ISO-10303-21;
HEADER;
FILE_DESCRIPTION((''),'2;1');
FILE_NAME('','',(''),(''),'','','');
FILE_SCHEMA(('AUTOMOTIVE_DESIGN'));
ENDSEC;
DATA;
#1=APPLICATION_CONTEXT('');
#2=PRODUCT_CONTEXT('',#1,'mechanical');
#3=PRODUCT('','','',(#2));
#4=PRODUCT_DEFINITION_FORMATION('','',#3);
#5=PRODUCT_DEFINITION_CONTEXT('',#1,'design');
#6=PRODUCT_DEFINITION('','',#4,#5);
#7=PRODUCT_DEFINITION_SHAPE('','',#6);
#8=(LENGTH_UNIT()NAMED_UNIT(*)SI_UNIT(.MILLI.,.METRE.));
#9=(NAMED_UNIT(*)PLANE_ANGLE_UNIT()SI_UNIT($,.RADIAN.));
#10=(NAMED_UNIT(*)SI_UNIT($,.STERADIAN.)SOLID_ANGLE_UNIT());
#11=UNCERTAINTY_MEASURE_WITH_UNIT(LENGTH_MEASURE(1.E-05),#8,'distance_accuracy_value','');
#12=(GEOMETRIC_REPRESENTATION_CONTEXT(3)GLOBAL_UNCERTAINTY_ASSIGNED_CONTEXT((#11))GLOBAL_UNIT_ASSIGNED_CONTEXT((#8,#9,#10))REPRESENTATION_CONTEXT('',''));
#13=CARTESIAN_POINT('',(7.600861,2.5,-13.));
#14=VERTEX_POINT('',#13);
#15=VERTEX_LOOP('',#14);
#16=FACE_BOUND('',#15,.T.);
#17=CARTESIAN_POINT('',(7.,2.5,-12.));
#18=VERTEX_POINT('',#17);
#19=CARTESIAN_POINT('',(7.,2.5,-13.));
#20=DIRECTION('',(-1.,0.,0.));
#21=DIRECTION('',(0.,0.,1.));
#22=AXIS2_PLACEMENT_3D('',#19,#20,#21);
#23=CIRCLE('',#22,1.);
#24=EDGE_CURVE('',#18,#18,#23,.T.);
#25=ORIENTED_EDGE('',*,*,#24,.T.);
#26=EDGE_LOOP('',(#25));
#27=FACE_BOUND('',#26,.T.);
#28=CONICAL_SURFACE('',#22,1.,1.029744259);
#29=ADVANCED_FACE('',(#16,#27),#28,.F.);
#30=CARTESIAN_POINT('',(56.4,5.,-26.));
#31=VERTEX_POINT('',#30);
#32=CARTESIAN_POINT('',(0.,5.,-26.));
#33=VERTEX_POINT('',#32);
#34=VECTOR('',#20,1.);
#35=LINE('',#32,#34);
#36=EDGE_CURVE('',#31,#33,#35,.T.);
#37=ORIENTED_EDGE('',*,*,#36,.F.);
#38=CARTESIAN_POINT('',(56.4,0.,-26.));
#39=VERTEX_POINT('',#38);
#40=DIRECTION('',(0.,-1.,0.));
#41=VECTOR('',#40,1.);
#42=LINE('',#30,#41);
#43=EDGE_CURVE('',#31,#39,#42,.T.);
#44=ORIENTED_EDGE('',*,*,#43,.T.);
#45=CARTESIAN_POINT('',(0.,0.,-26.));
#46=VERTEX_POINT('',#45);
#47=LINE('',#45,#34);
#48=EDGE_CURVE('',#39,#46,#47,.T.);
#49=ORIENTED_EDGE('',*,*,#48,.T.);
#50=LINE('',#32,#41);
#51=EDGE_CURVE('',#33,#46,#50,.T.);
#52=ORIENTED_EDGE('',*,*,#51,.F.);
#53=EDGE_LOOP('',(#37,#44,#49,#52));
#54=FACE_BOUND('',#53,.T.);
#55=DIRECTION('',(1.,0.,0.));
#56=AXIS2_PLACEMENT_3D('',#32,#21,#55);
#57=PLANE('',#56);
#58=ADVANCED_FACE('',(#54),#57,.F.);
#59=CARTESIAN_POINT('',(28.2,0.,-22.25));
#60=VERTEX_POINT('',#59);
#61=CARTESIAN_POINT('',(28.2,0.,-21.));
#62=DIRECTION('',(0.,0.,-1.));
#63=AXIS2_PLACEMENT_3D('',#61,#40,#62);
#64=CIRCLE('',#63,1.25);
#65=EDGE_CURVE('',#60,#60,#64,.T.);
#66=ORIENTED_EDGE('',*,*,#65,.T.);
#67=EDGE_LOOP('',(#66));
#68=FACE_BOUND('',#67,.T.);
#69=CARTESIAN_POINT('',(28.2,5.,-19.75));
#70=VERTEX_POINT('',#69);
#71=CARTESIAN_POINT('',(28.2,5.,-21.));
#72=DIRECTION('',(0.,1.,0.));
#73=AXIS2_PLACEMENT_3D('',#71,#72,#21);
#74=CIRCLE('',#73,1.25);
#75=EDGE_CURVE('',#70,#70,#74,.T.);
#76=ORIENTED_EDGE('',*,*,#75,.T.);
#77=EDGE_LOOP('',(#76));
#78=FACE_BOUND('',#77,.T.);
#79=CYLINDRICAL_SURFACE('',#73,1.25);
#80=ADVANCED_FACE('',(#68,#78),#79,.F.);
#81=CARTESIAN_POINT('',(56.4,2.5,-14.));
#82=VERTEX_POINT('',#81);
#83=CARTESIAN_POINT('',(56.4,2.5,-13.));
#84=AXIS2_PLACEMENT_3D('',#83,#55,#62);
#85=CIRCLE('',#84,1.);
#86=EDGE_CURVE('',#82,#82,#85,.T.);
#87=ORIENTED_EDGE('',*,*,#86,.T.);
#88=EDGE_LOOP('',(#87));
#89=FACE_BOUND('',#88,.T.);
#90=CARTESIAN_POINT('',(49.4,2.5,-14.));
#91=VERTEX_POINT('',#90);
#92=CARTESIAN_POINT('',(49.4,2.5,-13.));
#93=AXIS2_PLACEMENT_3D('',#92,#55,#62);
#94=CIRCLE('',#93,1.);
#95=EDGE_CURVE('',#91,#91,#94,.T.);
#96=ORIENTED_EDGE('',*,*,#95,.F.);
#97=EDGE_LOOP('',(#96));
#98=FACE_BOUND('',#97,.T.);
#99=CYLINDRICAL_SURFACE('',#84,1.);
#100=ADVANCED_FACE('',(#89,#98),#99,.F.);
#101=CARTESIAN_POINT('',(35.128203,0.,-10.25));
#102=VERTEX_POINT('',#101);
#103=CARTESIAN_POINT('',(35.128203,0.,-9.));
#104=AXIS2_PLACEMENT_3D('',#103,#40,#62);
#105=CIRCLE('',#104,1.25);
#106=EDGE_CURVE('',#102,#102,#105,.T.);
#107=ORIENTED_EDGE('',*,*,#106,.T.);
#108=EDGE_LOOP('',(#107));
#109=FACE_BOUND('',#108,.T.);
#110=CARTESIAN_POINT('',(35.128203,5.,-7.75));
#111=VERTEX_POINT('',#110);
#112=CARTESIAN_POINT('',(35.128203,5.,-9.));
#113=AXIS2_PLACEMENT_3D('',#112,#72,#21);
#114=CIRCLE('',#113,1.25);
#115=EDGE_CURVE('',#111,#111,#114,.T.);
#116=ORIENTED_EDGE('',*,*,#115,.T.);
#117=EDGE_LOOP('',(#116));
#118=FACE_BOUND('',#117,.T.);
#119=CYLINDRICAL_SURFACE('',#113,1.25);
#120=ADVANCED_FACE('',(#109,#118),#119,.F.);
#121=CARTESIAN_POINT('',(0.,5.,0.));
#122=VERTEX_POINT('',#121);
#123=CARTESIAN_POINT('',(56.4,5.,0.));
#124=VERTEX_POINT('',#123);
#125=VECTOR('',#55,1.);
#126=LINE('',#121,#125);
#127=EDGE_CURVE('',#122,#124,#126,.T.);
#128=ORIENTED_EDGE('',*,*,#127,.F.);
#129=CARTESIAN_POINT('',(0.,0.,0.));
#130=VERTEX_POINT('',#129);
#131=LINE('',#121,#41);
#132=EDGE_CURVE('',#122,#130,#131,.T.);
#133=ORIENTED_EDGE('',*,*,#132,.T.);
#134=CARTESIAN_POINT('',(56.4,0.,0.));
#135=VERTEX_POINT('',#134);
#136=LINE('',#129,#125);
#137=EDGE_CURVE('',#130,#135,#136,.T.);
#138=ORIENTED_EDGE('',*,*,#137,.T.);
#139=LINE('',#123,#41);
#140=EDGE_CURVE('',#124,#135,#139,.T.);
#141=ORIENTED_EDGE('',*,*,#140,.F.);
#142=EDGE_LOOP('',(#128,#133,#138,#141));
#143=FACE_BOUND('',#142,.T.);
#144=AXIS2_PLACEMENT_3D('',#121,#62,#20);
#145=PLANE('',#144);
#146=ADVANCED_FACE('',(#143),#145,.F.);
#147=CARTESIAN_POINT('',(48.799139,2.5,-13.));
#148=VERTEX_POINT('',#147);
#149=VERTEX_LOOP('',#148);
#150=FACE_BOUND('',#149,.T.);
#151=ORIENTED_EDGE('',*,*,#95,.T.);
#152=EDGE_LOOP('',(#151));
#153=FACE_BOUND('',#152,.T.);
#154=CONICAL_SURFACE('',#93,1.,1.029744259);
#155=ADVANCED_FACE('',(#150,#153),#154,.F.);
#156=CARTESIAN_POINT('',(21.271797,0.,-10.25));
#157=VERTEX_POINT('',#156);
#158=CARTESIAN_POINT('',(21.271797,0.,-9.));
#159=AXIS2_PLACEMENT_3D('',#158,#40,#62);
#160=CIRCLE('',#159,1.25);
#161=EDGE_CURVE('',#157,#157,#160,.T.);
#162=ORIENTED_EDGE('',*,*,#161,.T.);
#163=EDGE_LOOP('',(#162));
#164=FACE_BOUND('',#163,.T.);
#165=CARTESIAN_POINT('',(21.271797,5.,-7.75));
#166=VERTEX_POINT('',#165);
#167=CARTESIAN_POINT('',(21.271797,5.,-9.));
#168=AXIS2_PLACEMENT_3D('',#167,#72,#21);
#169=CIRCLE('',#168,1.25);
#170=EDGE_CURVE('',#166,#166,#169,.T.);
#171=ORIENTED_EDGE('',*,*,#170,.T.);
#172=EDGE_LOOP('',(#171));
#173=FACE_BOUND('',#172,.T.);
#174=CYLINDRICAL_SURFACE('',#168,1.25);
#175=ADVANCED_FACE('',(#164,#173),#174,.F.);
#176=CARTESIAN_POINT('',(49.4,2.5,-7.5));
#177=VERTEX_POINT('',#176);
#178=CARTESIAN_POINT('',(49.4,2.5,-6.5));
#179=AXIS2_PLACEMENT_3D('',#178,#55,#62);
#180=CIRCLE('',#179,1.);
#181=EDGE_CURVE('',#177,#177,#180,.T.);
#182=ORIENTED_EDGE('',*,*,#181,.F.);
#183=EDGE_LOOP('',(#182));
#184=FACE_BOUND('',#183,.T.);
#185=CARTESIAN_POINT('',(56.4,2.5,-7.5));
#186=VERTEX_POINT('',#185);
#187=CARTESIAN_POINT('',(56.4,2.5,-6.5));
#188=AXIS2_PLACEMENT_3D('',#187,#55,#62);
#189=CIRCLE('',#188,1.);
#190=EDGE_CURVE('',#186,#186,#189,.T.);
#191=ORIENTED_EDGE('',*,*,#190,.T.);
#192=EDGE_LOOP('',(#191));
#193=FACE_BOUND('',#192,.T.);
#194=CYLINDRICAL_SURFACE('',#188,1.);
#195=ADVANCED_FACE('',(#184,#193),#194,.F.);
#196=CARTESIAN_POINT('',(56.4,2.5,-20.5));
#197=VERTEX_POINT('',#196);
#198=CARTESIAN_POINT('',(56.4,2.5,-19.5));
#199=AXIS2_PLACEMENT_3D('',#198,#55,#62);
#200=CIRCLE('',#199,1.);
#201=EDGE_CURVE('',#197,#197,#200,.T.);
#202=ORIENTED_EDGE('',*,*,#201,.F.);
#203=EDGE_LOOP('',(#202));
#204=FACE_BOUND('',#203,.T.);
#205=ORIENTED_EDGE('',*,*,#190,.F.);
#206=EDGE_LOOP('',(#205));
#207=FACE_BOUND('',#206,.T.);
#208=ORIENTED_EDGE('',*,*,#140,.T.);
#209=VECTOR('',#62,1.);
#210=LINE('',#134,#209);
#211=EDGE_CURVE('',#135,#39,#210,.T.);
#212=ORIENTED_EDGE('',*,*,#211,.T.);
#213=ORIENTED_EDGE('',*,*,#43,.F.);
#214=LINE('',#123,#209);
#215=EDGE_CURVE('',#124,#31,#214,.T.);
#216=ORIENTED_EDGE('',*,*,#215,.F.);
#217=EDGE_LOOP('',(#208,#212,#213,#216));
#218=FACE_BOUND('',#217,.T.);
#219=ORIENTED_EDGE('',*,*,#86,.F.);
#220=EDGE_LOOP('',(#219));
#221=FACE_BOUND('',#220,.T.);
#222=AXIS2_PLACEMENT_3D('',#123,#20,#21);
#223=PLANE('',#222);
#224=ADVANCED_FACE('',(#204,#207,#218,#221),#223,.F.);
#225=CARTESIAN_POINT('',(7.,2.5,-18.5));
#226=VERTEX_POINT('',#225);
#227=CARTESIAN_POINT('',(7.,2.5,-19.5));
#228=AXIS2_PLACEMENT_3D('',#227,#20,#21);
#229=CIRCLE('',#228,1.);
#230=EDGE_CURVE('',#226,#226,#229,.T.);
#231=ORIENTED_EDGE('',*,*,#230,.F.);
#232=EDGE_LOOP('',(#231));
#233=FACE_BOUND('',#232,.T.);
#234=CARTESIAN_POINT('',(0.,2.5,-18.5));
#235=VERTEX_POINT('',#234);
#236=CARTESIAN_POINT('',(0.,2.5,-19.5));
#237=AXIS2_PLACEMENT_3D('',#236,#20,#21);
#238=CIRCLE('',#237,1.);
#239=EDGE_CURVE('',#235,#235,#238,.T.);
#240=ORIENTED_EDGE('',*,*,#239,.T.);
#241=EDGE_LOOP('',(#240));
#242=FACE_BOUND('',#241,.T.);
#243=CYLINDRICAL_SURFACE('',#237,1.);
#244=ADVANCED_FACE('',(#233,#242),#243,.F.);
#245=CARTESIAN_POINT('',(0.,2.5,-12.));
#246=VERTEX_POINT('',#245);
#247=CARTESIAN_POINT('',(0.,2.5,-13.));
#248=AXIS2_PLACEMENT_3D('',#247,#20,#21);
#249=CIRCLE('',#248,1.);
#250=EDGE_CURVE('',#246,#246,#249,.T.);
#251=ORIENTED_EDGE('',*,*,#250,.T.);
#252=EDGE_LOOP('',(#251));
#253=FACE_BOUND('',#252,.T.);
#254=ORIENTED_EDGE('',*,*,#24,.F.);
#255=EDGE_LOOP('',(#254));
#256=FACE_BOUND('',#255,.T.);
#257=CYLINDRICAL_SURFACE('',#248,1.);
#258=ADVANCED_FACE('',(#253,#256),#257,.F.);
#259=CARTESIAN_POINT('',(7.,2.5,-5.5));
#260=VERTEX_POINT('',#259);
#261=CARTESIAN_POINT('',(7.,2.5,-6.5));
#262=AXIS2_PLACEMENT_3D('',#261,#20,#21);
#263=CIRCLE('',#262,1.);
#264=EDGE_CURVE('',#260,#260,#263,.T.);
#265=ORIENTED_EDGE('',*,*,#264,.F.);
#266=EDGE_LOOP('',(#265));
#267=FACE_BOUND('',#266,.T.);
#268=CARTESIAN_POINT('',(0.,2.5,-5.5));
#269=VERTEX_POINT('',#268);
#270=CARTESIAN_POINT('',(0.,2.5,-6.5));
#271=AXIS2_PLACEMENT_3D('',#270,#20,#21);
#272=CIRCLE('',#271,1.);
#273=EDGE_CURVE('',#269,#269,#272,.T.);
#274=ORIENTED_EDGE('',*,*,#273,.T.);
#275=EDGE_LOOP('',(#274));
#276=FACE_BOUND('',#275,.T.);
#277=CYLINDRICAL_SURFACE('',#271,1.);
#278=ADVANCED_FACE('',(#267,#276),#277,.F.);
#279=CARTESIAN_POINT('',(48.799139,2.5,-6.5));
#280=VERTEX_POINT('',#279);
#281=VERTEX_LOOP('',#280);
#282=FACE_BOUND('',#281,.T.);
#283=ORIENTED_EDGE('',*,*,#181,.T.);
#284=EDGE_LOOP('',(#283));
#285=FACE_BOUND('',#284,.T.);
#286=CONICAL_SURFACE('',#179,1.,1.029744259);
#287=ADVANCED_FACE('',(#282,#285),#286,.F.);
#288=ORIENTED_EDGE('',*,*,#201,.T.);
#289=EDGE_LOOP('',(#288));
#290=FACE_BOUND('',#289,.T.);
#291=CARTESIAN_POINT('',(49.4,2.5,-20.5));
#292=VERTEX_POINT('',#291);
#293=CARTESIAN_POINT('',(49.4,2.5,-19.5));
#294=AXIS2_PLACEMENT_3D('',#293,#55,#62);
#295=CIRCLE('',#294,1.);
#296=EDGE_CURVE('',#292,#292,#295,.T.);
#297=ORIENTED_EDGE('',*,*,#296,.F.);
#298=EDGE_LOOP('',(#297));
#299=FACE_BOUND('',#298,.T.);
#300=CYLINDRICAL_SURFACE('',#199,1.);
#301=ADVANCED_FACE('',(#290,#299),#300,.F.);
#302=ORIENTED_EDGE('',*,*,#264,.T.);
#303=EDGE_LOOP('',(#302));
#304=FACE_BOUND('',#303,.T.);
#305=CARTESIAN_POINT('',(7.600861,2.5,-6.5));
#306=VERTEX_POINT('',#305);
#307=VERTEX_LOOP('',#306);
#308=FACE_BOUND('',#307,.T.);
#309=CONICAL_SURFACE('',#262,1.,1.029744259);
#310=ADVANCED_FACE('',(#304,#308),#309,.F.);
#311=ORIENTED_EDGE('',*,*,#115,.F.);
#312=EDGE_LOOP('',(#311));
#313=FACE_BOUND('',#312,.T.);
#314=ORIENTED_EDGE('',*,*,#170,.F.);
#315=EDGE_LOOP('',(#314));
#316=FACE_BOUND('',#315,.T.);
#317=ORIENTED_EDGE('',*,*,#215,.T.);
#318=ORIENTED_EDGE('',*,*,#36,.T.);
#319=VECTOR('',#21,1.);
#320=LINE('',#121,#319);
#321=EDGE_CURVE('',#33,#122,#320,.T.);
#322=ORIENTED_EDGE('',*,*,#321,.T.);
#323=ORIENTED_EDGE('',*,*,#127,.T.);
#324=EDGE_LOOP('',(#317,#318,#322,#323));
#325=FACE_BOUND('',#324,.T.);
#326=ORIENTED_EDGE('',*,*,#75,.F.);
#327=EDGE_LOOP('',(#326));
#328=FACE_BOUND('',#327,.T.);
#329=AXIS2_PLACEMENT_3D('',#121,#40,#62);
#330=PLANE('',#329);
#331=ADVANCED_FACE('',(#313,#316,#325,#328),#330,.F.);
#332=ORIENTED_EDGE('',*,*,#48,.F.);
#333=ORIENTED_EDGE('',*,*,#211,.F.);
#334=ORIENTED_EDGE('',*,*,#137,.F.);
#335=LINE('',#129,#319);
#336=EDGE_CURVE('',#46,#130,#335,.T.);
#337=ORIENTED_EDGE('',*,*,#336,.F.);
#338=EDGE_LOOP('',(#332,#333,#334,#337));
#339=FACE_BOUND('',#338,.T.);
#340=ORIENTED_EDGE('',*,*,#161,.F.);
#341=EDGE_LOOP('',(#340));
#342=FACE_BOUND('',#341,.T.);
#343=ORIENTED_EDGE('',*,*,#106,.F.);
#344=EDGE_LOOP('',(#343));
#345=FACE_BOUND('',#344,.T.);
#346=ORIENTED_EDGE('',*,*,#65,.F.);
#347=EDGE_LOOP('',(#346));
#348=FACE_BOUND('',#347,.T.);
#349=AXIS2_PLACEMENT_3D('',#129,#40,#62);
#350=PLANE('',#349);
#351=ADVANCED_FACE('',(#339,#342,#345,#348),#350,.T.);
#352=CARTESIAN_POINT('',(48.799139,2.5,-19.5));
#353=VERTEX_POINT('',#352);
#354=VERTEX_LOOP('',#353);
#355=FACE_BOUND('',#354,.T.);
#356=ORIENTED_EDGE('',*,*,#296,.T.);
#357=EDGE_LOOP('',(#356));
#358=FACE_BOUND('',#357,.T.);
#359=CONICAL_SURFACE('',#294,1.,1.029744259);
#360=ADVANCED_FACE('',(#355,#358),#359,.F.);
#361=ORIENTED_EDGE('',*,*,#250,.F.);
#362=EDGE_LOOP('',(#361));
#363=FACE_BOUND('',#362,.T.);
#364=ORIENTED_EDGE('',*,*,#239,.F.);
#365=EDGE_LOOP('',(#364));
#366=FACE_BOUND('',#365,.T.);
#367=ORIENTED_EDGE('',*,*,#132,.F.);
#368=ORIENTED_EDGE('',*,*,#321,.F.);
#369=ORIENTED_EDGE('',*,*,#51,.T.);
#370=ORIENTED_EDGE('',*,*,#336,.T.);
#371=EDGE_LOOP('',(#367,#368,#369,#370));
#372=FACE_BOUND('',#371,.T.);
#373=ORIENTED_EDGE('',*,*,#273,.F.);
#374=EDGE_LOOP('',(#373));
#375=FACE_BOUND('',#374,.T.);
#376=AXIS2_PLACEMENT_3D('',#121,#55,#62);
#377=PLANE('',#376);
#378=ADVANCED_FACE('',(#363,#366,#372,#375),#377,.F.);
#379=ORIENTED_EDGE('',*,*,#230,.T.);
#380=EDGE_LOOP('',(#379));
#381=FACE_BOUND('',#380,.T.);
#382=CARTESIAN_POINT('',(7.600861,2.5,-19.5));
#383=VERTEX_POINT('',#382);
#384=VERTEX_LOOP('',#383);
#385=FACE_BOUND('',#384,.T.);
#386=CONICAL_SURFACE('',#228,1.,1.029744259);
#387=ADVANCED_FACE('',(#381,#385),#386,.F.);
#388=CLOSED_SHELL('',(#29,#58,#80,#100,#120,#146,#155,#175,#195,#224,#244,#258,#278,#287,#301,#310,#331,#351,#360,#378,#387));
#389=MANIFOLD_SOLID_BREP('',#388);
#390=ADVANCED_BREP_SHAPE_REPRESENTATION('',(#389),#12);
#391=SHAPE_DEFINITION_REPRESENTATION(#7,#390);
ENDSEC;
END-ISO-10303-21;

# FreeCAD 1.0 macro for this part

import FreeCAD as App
import Part
import Sketcher

V = App.Vector
Q = App.Units.Quantity


def add_polygon(sketch, points):
    """Adds a closed chain of lines whose ends are joined by coincident constraints."""
    first, n = sketch.GeometryCount, len(points)
    for a, b in zip(points, points[1:] + points[:1]):
        sketch.addGeometry(Part.LineSegment(App.Vector(*a, 0), App.Vector(*b, 0)), False)
    for i in range(n):
        sketch.addConstraint(Sketcher.Constraint("Coincident", first + i, 2, first + (i + 1) % n, 1))

doc = App.newDocument("Part")
body = doc.addObject("PartDesign::Body", "Body")

sketch1 = doc.addObject("Sketcher::SketchObject", "Sketch")
body.addObject(sketch1)
sketch1.AttachmentSupport = (doc.XZ_Plane, [""])
sketch1.MapMode = "FlatFace"
add_polygon(sketch1, [(0, -26), (0, 0), (56, 0), (56, -26)])
sketch1.addConstraint(Sketcher.Constraint("Vertical", 0))
sketch1.addConstraint(Sketcher.Constraint("Horizontal", 1))
sketch1.addConstraint(Sketcher.Constraint("Vertical", 2))
sketch1.addConstraint(Sketcher.Constraint("Horizontal", 3))
sketch1.addConstraint(Sketcher.Constraint("Coincident", 0, 2, -1, 1))
sketch1.addConstraint(Sketcher.Constraint("DistanceY", 0, 1, 0, 2, Q("26 mm")))
sketch1.addConstraint(Sketcher.Constraint("DistanceX", 1, 1, 1, 2, Q("56.4 mm")))
pad1 = doc.addObject("PartDesign::Pad", "Pad")
body.addObject(pad1)
pad1.Profile = sketch1
pad1.Length = 5
pad1.Reversed = True

sketch2 = doc.addObject("Sketcher::SketchObject", "Sketch001")
body.addObject(sketch2)
sketch2.AttachmentSupport = (doc.YZ_Plane, [""])
sketch2.MapMode = "FlatFace"
sketch2.AttachmentOffset = App.Placement(V(0, 0, 56.4), App.Rotation())
sketch2.addGeometry(Part.Circle(V(2.5, -6.5, 0), V(0, 0, 1), 1), False)
sketch2.addGeometry(Part.Circle(V(2.5, -13, 0), V(0, 0, 1), 1), False)
sketch2.addGeometry(Part.Circle(V(2.5, -19.5, 0), V(0, 0, 1), 1), False)
sketch2.addConstraint(Sketcher.Constraint("Equal", 0, 1))
sketch2.addConstraint(Sketcher.Constraint("Equal", 1, 2))
sketch2.addConstraint(Sketcher.Constraint("Vertical", 0, 3, 1, 3))
sketch2.addConstraint(Sketcher.Constraint("Vertical", 1, 3, 2, 3))
sketch2.addConstraint(Sketcher.Constraint("Diameter", 0, Q("2 mm")))
sketch2.addConstraint(Sketcher.Constraint("DistanceY", 1, 3, -1, 1, Q("13 mm")))
sketch2.addConstraint(Sketcher.Constraint("DistanceY", 2, 3, 0, 3, Q("13 mm")))
sketch2.addConstraint(Sketcher.Constraint("DistanceX", -1, 1, 0, 3, Q("2.5 mm")))
sketch2.addConstraint(Sketcher.Constraint("DistanceY", 0, 3, -1, 1, Q("6.5 mm")))
doc.recompute()
hole = doc.addObject("PartDesign::Hole", "Hole")
body.addObject(hole)
hole.Profile = sketch2
hole.ThreadType = "None"
hole.Diameter = 2
hole.DepthType = "Dimension"
hole.Depth = 7
hole.DrillPoint = "Angled"
hole.DrillPointAngle = 118

sketch3 = doc.addObject("Sketcher::SketchObject", "Sketch002")
body.addObject(sketch3)
sketch3.AttachmentSupport = (doc.YZ_Plane, [""])
sketch3.MapMode = "FlatFace"
sketch3.addGeometry(Part.Circle(V(2.5, -19.5, 0), V(0, 0, 1), 1), False)
sketch3.addGeometry(Part.Circle(V(2.5, -13, 0), V(0, 0, 1), 1), False)
sketch3.addGeometry(Part.Circle(V(2.5, -6.5, 0), V(0, 0, 1), 1), False)
sketch3.addConstraint(Sketcher.Constraint("Equal", 0, 1))
sketch3.addConstraint(Sketcher.Constraint("Equal", 1, 2))
sketch3.addConstraint(Sketcher.Constraint("Vertical", 0, 3, 1, 3))
sketch3.addConstraint(Sketcher.Constraint("Vertical", 1, 3, 2, 3))
sketch3.addConstraint(Sketcher.Constraint("Diameter", 0, Q("2 mm")))
sketch3.addConstraint(Sketcher.Constraint("DistanceY", 1, 3, -1, 1, Q("13 mm")))
sketch3.addConstraint(Sketcher.Constraint("DistanceY", 0, 3, 2, 3, Q("13 mm")))
sketch3.addConstraint(Sketcher.Constraint("DistanceX", -1, 1, 0, 3, Q("2.5 mm")))
sketch3.addConstraint(Sketcher.Constraint("DistanceY", 0, 3, -1, 1, Q("19.5 mm")))
doc.recompute()
hole2 = doc.addObject("PartDesign::Hole", "Hole001")
body.addObject(hole2)
hole2.Profile = sketch3
hole2.ThreadType = "None"
hole2.Diameter = 2
hole2.DepthType = "Dimension"
hole2.Depth = 7
hole2.DrillPoint = "Angled"
hole2.DrillPointAngle = 118
hole2.Reversed = True

sketch4 = doc.addObject("Sketcher::SketchObject", "Sketch003")
body.addObject(sketch4)
sketch4.AttachmentSupport = (doc.XZ_Plane, [""])
sketch4.MapMode = "FlatFace"
sketch4.AttachmentOffset = App.Placement(V(0, 0, -5), App.Rotation())
sketch4.addGeometry(Part.Circle(V(21.3, -9, 0), V(0, 0, 1), 1.2), False)
sketch4.addGeometry(Part.Circle(V(28.2, -21, 0), V(0, 0, 1), 1.2), False)
sketch4.addGeometry(Part.Circle(V(35.1, -9, 0), V(0, 0, 1), 1.2), False)
sketch4.addConstraint(Sketcher.Constraint("Equal", 0, 1))
sketch4.addConstraint(Sketcher.Constraint("Equal", 1, 2))
sketch4.addConstraint(Sketcher.Constraint("Horizontal", 0, 3, 2, 3))
sketch4.addConstraint(Sketcher.Constraint("Diameter", 0, Q("2.5 mm")))
sketch4.addConstraint(Sketcher.Constraint("DistanceY", 0, 3, -1, 1, Q("9 mm")))
sketch4.addConstraint(Sketcher.Constraint("DistanceY", 1, 3, -1, 1, Q("21 mm")))
sketch4.addConstraint(Sketcher.Constraint("DistanceX", -1, 1, 1, 3, Q("28.2 mm")))
sketch4.addConstraint(Sketcher.Constraint("DistanceX", -1, 1, 0, 3, Q("21.271797 mm")))
sketch4.addConstraint(Sketcher.Constraint("DistanceX", -1, 1, 2, 3, Q("35.128203 mm")))
doc.recompute()
hole3 = doc.addObject("PartDesign::Hole", "Hole002")
body.addObject(hole3)
hole3.Profile = sketch4
hole3.ThreadType = "None"
hole3.Diameter = 2.5
hole3.DepthType = "Dimension"
hole3.Depth = 8
hole3.DrillPoint = "Angled"
hole3.DrillPointAngle = 118
hole3.Reversed = True

doc.recompute()
